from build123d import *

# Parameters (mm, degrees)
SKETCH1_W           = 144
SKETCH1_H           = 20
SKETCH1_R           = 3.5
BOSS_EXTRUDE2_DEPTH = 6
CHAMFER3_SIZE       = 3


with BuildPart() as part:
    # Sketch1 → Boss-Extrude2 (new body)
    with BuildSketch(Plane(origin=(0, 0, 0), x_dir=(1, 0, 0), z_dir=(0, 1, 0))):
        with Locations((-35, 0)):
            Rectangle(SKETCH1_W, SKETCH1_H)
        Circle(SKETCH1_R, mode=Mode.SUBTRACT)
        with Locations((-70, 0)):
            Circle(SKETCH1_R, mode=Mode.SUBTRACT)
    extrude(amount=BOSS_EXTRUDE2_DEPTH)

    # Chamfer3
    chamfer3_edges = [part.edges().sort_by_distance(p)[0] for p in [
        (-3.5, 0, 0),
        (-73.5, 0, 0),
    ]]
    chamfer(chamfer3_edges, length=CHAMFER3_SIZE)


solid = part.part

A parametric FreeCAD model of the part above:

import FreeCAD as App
import Part
import Sketcher

V = App.Vector


def edges_at(feature, points):
    """Names of the edges that pass closest to the given points."""
    edges = feature.Shape.Edges
    near = lambda p: min(range(len(edges)), key=lambda i: edges[i].distToShape(Part.Vertex(*p))[0])
    return sorted({f"Edge{near(p) + 1}" for p in points})


def add_polygon(sketch, points):
    """Adds a closed chain of lines whose ends are joined by coincident constraints."""
    first, n = sketch.GeometryCount, len(points)
    for a, b in zip(points, points[1:] + points[:1]):
        sketch.addGeometry(Part.LineSegment(App.Vector(*a, 0), App.Vector(*b, 0)), False)
    for i in range(n):
        sketch.addConstraint(Sketcher.Constraint("Coincident", first + i, 2, first + (i + 1) % n, 1))

doc = App.newDocument("Part")
body = doc.addObject("PartDesign::Body", "Body")

# Sketch on XZ plane
sketch1 = doc.addObject("Sketcher::SketchObject", "Sketch")
body.addObject(sketch1)
sketch1.AttachmentSupport = (doc.XZ_Plane, [""])
sketch1.MapMode = "FlatFace"
add_polygon(sketch1, [(-107, -10), (-107, 10), (37, 10), (37, -10)])  # lines 0-3
sketch1.addGeometry(Part.Circle(V(-70, 0, 0), V(0, 0, 1), 3.5), False)  # 4
sketch1.addGeometry(Part.Circle(V(0, 0, 0), V(0, 0, 1), 3.5), False)  # 5
sketch1.addConstraint(Sketcher.Constraint("Vertical", 0))
sketch1.addConstraint(Sketcher.Constraint("Horizontal", 1))
sketch1.addConstraint(Sketcher.Constraint("Vertical", 2))
sketch1.addConstraint(Sketcher.Constraint("Horizontal", 3))
sketch1.addConstraint(Sketcher.Constraint("Coincident", 5, 3, -1, 1))
sketch1.addConstraint(Sketcher.Constraint("Equal", 4, 5))
sketch1.addConstraint(Sketcher.Constraint("PointOnObject", 4, 3, -1))
sketch1.addConstraint(Sketcher.Constraint("Diameter", 4, 7.0))
sketch1.addConstraint(Sketcher.Constraint("DistanceX", 1, 1, 1, 2, 144.0))
sketch1.addConstraint(Sketcher.Constraint("DistanceY", 0, 1, 0, 2, 20.0))
sketch1.addConstraint(Sketcher.Constraint("DistanceX", 4, 3, -1, 1, 70.0))
sketch1.addConstraint(Sketcher.Constraint("DistanceX", 0, 2, -1, 1, 107.0))
sketch1.addConstraint(Sketcher.Constraint("DistanceY", -1, 1, 0, 2, 10.0))
pad1 = doc.addObject("PartDesign::Pad", "Pad")
body.addObject(pad1)
pad1.Profile = sketch1
pad1.Length = 6
pad1.Reversed = True
doc.recompute()

chamfer = doc.addObject("PartDesign::Chamfer", "Chamfer")
body.addObject(chamfer)
chamfer.Base = (pad1, edges_at(pad1, [(-3.5, 0, 0), (-73.5, 0, 0)]))
chamfer.Size = 3

doc.recompute()
